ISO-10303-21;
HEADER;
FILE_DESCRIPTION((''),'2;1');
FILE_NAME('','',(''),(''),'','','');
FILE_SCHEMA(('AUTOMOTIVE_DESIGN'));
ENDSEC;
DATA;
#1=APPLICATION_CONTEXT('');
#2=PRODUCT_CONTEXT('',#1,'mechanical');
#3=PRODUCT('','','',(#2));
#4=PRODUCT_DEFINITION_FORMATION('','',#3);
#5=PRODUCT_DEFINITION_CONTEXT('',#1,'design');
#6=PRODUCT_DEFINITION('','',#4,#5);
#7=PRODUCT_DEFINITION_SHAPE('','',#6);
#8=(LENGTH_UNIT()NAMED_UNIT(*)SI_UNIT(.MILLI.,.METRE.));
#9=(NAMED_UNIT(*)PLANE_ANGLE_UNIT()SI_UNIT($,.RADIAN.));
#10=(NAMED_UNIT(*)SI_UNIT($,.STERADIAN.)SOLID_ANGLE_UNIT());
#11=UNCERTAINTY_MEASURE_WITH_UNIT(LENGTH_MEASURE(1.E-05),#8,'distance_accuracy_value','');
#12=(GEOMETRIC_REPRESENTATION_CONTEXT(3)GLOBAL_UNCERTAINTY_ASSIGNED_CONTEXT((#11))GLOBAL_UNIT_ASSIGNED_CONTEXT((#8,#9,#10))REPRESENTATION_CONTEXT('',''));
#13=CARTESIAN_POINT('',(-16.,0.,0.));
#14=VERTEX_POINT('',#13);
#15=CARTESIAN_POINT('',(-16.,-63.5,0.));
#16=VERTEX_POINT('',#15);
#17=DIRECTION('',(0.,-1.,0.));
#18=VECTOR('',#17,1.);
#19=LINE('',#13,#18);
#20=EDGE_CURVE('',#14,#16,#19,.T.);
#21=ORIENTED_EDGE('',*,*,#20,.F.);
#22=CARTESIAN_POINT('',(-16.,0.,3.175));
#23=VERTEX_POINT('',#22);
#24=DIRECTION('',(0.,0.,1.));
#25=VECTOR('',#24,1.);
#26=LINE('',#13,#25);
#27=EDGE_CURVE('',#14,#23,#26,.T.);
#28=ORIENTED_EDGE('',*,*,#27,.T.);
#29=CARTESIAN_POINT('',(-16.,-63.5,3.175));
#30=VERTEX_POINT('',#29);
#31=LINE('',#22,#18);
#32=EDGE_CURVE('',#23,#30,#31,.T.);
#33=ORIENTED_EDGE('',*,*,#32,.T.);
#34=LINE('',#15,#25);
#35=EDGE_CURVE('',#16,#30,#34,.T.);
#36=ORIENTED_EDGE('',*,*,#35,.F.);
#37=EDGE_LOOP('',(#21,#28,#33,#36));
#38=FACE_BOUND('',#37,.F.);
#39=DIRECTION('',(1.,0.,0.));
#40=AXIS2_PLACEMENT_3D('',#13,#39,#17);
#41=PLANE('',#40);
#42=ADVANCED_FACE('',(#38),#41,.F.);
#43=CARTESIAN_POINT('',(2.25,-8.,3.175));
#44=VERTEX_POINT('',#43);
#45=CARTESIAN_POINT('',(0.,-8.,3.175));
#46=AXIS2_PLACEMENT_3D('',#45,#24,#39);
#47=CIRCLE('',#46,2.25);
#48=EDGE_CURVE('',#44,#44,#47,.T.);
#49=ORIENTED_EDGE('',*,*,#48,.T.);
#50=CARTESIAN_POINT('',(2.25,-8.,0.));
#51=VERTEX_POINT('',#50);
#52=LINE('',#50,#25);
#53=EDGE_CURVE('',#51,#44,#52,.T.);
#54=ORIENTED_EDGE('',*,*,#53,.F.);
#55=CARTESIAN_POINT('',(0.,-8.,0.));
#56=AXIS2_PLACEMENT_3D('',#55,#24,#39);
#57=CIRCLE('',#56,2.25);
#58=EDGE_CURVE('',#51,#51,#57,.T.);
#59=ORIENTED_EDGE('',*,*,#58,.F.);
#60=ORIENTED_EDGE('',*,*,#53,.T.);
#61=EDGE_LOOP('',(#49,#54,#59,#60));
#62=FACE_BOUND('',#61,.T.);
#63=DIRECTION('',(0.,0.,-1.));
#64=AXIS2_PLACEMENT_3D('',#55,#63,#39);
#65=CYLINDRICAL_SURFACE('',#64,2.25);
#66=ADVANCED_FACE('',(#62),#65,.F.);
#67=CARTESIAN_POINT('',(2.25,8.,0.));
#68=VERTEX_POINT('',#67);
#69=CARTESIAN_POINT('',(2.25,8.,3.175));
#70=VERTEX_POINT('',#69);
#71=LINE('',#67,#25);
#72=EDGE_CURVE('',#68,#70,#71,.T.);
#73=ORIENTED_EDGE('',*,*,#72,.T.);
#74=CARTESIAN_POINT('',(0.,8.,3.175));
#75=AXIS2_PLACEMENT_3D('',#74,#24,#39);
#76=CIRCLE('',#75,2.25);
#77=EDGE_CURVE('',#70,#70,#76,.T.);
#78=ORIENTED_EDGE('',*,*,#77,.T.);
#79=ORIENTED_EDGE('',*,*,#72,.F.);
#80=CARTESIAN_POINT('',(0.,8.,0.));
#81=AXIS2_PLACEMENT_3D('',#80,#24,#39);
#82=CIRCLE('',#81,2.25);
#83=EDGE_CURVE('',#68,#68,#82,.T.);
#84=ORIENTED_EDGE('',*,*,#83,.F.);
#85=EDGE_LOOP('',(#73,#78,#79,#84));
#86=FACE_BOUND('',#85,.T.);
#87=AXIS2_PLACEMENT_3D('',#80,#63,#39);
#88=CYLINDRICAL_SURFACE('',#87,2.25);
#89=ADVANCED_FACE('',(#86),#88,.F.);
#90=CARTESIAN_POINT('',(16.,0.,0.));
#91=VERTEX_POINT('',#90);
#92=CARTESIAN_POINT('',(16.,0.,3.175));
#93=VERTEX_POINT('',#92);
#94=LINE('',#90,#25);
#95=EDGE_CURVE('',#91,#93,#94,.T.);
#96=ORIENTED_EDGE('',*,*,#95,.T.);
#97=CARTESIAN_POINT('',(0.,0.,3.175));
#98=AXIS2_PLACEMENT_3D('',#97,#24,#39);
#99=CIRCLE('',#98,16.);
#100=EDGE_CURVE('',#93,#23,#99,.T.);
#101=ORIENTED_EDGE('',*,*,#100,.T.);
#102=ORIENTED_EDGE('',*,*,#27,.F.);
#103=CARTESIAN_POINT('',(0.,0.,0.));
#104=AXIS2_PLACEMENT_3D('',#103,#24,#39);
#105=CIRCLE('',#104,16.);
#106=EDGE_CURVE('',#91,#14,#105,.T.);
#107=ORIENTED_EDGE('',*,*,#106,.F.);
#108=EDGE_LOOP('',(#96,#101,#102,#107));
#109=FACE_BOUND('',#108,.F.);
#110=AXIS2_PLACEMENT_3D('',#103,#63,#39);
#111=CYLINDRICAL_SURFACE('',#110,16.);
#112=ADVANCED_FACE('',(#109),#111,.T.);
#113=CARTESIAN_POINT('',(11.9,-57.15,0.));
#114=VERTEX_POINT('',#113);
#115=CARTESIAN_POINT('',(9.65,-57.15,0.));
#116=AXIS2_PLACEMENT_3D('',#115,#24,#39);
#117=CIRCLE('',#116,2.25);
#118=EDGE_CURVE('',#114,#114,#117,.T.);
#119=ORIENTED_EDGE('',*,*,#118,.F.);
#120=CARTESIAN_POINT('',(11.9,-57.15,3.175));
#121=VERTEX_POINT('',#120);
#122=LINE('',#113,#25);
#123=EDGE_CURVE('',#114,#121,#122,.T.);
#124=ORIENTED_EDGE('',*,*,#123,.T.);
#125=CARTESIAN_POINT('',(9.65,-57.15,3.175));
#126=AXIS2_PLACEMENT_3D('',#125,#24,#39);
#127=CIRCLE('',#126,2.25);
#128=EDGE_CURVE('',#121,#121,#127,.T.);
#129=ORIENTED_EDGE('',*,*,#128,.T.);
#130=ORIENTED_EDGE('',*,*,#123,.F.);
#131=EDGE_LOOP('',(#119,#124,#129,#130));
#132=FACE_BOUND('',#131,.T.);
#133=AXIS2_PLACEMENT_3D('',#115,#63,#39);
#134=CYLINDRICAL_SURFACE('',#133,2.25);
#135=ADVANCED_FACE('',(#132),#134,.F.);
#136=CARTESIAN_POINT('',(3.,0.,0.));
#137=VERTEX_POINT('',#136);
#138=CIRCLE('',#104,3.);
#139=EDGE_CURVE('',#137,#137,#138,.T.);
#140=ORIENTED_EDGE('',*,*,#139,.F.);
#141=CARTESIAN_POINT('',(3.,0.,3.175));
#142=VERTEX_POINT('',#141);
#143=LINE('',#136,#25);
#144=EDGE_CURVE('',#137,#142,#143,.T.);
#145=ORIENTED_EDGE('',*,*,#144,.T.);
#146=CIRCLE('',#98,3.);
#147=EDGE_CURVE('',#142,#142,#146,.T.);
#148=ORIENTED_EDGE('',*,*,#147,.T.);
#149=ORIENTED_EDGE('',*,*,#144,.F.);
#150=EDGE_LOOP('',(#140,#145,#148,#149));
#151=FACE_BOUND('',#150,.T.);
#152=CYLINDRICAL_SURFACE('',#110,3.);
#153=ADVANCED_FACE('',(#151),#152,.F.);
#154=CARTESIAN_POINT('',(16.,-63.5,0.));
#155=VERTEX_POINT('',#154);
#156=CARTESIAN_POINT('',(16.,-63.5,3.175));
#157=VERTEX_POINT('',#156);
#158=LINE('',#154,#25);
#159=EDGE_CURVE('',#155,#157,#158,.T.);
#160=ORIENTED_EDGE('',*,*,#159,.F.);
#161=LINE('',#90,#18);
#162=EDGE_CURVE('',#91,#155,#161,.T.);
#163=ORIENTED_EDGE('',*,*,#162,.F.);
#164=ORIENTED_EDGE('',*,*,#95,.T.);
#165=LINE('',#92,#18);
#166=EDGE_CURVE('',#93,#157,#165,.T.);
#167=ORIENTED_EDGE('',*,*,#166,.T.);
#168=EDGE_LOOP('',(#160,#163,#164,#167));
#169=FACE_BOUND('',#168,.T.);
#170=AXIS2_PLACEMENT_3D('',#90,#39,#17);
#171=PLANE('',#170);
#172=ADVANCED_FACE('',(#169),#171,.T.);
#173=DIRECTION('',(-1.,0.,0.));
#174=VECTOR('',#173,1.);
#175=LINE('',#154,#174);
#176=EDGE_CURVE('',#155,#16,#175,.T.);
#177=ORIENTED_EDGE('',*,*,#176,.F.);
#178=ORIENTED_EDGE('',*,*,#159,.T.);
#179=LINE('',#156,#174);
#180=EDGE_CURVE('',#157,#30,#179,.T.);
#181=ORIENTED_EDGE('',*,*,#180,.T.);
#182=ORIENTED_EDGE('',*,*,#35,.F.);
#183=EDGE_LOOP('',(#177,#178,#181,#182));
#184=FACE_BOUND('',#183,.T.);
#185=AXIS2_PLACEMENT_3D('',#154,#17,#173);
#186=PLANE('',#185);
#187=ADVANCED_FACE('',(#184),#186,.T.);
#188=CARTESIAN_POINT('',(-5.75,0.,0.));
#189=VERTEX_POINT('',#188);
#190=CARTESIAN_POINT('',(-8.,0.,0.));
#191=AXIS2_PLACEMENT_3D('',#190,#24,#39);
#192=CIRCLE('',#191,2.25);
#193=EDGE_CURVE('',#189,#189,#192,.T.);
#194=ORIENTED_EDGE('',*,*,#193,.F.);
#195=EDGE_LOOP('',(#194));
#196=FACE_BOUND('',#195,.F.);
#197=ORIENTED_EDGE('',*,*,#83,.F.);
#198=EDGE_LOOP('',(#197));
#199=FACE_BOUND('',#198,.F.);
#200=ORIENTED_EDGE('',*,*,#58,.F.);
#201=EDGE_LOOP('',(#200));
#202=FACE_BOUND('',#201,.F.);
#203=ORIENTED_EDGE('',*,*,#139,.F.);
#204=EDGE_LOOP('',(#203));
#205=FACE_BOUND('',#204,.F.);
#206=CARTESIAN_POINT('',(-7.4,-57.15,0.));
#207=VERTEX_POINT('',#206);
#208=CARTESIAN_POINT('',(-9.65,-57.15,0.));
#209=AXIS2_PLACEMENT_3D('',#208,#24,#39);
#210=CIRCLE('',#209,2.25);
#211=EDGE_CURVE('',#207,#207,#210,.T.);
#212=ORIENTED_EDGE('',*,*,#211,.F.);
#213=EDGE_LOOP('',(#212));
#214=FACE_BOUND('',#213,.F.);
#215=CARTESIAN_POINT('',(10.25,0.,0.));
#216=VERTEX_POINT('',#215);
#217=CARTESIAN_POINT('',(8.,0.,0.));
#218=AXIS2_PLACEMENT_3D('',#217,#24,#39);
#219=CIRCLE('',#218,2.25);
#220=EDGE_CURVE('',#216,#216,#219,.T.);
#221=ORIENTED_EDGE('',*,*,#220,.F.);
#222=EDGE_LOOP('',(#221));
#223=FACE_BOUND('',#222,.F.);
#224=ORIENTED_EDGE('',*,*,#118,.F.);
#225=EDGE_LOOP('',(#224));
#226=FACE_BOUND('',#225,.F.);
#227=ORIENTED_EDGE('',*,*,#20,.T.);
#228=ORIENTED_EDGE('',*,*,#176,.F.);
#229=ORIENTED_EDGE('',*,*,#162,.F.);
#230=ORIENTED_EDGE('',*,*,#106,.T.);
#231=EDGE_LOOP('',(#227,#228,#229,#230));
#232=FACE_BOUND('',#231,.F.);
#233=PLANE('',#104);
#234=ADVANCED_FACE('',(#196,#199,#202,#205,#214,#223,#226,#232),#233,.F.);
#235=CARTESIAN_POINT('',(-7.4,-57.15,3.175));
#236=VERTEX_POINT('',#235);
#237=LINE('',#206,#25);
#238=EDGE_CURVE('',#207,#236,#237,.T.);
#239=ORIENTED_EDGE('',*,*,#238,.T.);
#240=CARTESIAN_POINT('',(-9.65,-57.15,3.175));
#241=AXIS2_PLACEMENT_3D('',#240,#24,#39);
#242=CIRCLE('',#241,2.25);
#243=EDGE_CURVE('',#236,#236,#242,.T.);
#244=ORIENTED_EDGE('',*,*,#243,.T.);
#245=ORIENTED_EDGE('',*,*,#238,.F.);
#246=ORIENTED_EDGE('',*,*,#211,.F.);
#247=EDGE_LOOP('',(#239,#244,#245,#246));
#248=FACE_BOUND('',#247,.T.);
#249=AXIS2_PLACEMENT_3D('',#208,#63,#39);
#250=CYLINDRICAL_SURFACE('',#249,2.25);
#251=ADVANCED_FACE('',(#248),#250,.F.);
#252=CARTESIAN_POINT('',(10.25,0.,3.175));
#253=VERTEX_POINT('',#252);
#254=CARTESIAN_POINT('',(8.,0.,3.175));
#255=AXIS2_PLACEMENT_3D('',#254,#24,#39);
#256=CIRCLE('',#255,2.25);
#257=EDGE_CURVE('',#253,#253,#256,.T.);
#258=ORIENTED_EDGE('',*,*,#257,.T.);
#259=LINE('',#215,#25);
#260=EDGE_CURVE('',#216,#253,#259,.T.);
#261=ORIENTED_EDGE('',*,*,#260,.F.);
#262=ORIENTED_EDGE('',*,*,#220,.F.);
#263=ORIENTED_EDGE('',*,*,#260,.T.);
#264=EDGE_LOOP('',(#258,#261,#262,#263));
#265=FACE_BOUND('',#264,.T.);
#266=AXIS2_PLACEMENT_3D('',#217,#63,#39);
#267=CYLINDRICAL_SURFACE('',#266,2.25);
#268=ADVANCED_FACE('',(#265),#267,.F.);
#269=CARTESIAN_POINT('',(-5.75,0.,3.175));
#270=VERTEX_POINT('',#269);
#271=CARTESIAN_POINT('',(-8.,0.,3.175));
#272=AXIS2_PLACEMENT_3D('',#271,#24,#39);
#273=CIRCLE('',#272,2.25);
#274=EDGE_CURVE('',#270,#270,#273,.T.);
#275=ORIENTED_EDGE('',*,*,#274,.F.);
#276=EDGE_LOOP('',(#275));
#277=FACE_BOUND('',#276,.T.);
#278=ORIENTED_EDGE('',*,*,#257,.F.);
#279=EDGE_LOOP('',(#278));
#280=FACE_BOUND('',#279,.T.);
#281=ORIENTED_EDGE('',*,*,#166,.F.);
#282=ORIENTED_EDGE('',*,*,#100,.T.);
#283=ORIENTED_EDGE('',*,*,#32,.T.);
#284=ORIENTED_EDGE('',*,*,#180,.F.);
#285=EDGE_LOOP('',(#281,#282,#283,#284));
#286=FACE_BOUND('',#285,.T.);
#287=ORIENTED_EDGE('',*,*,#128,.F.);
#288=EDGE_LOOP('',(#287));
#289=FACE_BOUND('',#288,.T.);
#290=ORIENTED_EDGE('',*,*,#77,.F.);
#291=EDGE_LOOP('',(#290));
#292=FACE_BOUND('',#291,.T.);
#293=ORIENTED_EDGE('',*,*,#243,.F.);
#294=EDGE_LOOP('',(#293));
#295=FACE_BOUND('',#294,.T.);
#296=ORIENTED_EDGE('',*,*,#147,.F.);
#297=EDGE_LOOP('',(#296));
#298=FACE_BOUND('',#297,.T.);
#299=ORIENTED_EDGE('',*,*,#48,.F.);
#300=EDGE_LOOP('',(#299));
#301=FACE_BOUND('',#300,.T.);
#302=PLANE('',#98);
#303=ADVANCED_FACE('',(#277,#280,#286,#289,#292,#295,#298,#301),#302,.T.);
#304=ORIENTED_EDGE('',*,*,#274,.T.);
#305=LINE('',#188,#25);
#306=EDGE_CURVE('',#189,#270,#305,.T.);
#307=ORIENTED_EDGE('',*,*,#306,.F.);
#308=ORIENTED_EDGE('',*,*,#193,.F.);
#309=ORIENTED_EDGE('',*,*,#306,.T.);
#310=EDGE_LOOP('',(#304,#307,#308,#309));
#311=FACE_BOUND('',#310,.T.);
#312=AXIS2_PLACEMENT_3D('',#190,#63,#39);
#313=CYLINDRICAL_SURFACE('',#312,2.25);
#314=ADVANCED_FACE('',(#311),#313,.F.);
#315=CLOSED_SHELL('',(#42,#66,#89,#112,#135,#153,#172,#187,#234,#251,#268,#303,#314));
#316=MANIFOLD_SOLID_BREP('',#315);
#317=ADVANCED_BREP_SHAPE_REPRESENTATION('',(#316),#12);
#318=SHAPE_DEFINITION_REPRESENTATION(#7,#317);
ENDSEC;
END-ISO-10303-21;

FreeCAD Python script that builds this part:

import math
import FreeCAD as App
import Part
import Sketcher
Q = App.Units.Quantity

doc = App.newDocument("Part")
body = doc.addObject("PartDesign::Body", "Body")

sketch1 = body.newObject("Sketcher::SketchObject", "Sketch")
sketch1.AttachmentSupport = (doc.getObject("XY_Plane"), [""])
sketch1.MapMode = "FlatFace"
sketch1.addGeometry(Part.ArcOfCircle(Part.Circle(App.Vector(0, 0, 0), App.Vector(0, 0, 1), 16), math.radians(0), math.radians(180)), False)
sketch1.addGeometry(Part.LineSegment(App.Vector(-16, 0, 0), App.Vector(-16, -63.5, 0)), False)
sketch1.addGeometry(Part.LineSegment(App.Vector(-16, -63.5, 0), App.Vector(16, -63.5, 0)), False)
sketch1.addGeometry(Part.LineSegment(App.Vector(16, -63.5, 0), App.Vector(16, 0, 0)), False)
sketch1.addGeometry(Part.Circle(App.Vector(-8, 0, 0), App.Vector(0, 0, 1), 2.25), False)
sketch1.addGeometry(Part.Circle(App.Vector(0, -8, 0), App.Vector(0, 0, 1), 2.25), False)
sketch1.addGeometry(Part.Circle(App.Vector(0, 0, 0), App.Vector(0, 0, 1), 3), False)
sketch1.addGeometry(Part.Circle(App.Vector(0, 8, 0), App.Vector(0, 0, 1), 2.25), False)
sketch1.addGeometry(Part.Circle(App.Vector(8, 0, 0), App.Vector(0, 0, 1), 2.25), False)
sketch1.addGeometry(Part.Circle(App.Vector(9.65, -57.15, 0), App.Vector(0, 0, 1), 2.25), False)
sketch1.addGeometry(Part.Circle(App.Vector(-9.65, -57.15, 0), App.Vector(0, 0, 1), 2.25), False)
sketch1.addConstraint(Sketcher.Constraint("Tangent", 0, 2, 1, 1))
sketch1.addConstraint(Sketcher.Constraint("Coincident", 1, 2, 2, 1))
sketch1.addConstraint(Sketcher.Constraint("Coincident", 2, 2, 3, 1))
sketch1.addConstraint(Sketcher.Constraint("Tangent", 3, 2, 0, 1))
sketch1.addConstraint(Sketcher.Constraint("Vertical", 1))
sketch1.addConstraint(Sketcher.Constraint("Horizontal", 2))
sketch1.addConstraint(Sketcher.Constraint("Vertical", 3))
sketch1.addConstraint(Sketcher.Constraint("Coincident", 0, 3, -1, 1))
sketch1.addConstraint(Sketcher.Constraint("Coincident", 6, 3, -1, 1))
sketch1.addConstraint(Sketcher.Constraint("Equal", 4, 5))
sketch1.addConstraint(Sketcher.Constraint("Equal", 5, 7))
sketch1.addConstraint(Sketcher.Constraint("Equal", 7, 8))
sketch1.addConstraint(Sketcher.Constraint("Equal", 8, 9))
sketch1.addConstraint(Sketcher.Constraint("Equal", 9, 10))
sketch1.addConstraint(Sketcher.Constraint("Symmetric", 5, 3, 7, 3, -1, 1))
sketch1.addConstraint(Sketcher.Constraint("Symmetric", 4, 3, 8, 3, -1, 1))
sketch1.addConstraint(Sketcher.Constraint("Symmetric", 9, 3, 10, 3, -2))
sketch1.addConstraint(Sketcher.Constraint("PointOnObject", 4, 3, -1))
sketch1.addConstraint(Sketcher.Constraint("PointOnObject", 5, 3, -2))
sketch1.addConstraint(Sketcher.Constraint("Diameter", 6, Q("6 mm")))
sketch1.addConstraint(Sketcher.Constraint("Radius", 0, Q("16 mm")))
sketch1.addConstraint(Sketcher.Constraint("Diameter", 4, Q("4.5 mm")))
sketch1.addConstraint(Sketcher.Constraint("DistanceY", 1, 2, 1, 1, Q("63.5 mm")))
sketch1.addConstraint(Sketcher.Constraint("DistanceX", 4, 3, -1, 1, Q("8 mm")))
sketch1.addConstraint(Sketcher.Constraint("DistanceY", 5, 3, -1, 1, Q("8 mm")))
sketch1.addConstraint(Sketcher.Constraint("DistanceX", 10, 3, 9, 3, Q("19.3 mm")))
sketch1.addConstraint(Sketcher.Constraint("DistanceY", 1, 2, 10, 3, Q("6.35 mm")))
pad1 = body.newObject("PartDesign::Pad", "Pad")
pad1.Profile = sketch1
pad1.Length = 3.175

doc.recompute()
